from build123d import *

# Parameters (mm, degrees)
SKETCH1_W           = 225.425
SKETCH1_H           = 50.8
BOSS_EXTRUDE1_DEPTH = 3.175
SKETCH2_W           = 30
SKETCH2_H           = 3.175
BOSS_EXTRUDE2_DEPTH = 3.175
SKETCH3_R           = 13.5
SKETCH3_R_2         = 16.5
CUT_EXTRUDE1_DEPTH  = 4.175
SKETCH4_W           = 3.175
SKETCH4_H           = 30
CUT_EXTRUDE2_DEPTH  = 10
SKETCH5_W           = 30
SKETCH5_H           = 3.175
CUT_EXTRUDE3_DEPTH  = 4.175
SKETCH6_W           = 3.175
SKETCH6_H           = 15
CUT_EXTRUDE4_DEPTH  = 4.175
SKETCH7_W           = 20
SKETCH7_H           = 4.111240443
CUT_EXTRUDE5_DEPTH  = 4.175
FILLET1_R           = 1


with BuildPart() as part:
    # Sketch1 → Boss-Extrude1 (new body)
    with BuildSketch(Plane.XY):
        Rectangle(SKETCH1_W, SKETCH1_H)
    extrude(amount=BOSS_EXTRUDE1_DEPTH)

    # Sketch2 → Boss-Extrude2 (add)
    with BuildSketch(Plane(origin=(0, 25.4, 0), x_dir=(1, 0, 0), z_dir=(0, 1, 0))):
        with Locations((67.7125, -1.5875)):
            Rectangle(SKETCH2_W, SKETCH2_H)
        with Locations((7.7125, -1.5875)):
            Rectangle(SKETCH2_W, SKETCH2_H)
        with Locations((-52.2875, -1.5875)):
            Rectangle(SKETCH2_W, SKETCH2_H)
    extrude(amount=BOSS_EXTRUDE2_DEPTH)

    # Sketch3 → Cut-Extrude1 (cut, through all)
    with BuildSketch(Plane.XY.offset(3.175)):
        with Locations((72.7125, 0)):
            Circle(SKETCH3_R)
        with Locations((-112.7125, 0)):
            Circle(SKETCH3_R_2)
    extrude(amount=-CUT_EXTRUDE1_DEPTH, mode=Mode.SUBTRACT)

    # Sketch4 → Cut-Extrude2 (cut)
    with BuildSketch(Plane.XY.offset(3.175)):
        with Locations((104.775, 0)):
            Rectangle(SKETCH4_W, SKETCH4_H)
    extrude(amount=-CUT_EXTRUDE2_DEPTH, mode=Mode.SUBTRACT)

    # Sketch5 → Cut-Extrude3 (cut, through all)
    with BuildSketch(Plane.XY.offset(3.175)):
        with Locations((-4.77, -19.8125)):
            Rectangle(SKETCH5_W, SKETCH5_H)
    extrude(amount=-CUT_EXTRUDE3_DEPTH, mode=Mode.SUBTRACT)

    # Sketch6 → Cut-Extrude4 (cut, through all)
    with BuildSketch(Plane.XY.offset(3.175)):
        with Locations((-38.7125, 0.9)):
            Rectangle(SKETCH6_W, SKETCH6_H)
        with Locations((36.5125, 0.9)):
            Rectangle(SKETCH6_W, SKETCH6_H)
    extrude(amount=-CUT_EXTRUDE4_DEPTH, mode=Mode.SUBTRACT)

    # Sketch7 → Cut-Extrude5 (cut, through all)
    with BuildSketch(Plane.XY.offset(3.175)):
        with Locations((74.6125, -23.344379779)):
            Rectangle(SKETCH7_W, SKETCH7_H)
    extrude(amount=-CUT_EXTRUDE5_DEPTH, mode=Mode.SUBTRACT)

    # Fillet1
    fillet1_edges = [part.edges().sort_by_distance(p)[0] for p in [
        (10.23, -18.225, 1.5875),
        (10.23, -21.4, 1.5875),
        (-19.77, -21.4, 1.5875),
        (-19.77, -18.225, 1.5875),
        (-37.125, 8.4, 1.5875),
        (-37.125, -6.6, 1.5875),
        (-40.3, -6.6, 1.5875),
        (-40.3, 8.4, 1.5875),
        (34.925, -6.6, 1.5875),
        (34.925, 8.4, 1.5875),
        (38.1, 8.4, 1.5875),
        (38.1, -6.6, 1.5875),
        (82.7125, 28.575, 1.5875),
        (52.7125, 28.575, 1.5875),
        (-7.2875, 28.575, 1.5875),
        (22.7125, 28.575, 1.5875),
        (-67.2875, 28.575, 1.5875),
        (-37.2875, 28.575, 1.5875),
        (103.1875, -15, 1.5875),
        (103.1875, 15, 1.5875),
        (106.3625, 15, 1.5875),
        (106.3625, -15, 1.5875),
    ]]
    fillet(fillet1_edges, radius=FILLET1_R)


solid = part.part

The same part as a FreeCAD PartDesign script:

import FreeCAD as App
import Part
import Sketcher
from FreeCAD import Vector
Q = App.Units.Quantity


def edges_at(feature, points):
    """Names of the edges that pass closest to the given points."""
    edges = feature.Shape.Edges
    near = lambda p: min(range(len(edges)), key=lambda i: edges[i].distToShape(Part.Vertex(*p))[0])
    return sorted({f"Edge{near(p) + 1}" for p in points})

doc = App.newDocument("Part")
body = doc.addObject("PartDesign::Body", "Body")

# Sketch on XY plane
sketch1 = body.newObject("Sketcher::SketchObject", "Sketch")
sketch1.AttachmentSupport = (doc.getObject("XY_Plane"), [""])
sketch1.MapMode = "FlatFace"
sketch1.addGeometry(Part.LineSegment(Vector(-113, 25, 0), Vector(-113, -25, 0)), False)
sketch1.addGeometry(Part.LineSegment(Vector(-113, -25, 0), Vector(113, -25, 0)), False)
sketch1.addGeometry(Part.LineSegment(Vector(113, -25, 0), Vector(113, 25, 0)), False)
sketch1.addGeometry(Part.LineSegment(Vector(113, 25, 0), Vector(-113, 25, 0)), False)
sketch1.addConstraint(Sketcher.Constraint("Coincident", 0, 2, 1, 1))
sketch1.addConstraint(Sketcher.Constraint("Coincident", 1, 2, 2, 1))
sketch1.addConstraint(Sketcher.Constraint("Coincident", 2, 2, 3, 1))
sketch1.addConstraint(Sketcher.Constraint("Coincident", 3, 2, 0, 1))
sketch1.addConstraint(Sketcher.Constraint("Vertical", 0))
sketch1.addConstraint(Sketcher.Constraint("Horizontal", 1))
sketch1.addConstraint(Sketcher.Constraint("Vertical", 2))
sketch1.addConstraint(Sketcher.Constraint("Horizontal", 3))
sketch1.addConstraint(Sketcher.Constraint("Symmetric", 0, 2, 2, 2, -1, 1))
sketch1.addConstraint(Sketcher.Constraint("DistanceY", 0, 2, 0, 1, Q("50.8 mm")))
sketch1.addConstraint(Sketcher.Constraint("DistanceX", 1, 1, 1, 2, Q("225.425 mm")))
pad1 = body.newObject("PartDesign::Pad", "Pad")
pad1.Profile = sketch1
pad1.Length = 3.175

# Sketch on XZ plane
sketch2 = body.newObject("Sketcher::SketchObject", "Sketch001")
sketch2.AttachmentSupport = (doc.getObject("XZ_Plane"), [""])
sketch2.MapMode = "FlatFace"
sketch2.AttachmentOffset = App.Placement(Vector(0, 0, -25.4), App.Rotation())
sketch2.addGeometry(Part.LineSegment(Vector(52.7, 0, 0), Vector(52.7, 3.2, 0)), False)
sketch2.addGeometry(Part.LineSegment(Vector(52.7, 3.2, 0), Vector(82.7, 3.2, 0)), False)
sketch2.addGeometry(Part.LineSegment(Vector(82.7, 3.2, 0), Vector(82.7, 0, 0)), False)
sketch2.addGeometry(Part.LineSegment(Vector(82.7, 0, 0), Vector(52.7, 0, 0)), False)
sketch2.addGeometry(Part.LineSegment(Vector(-7.3, 0, 0), Vector(-7.3, 3.2, 0)), False)
sketch2.addGeometry(Part.LineSegment(Vector(-7.3, 3.2, 0), Vector(22.7, 3.2, 0)), False)
sketch2.addGeometry(Part.LineSegment(Vector(22.7, 3.2, 0), Vector(22.7, 0, 0)), False)
sketch2.addGeometry(Part.LineSegment(Vector(22.7, 0, 0), Vector(-7.3, 0, 0)), False)
sketch2.addGeometry(Part.LineSegment(Vector(-67.3, 0, 0), Vector(-67.3, 3.2, 0)), False)
sketch2.addGeometry(Part.LineSegment(Vector(-67.3, 3.2, 0), Vector(-37.3, 3.2, 0)), False)
sketch2.addGeometry(Part.LineSegment(Vector(-37.3, 3.2, 0), Vector(-37.3, 0, 0)), False)
sketch2.addGeometry(Part.LineSegment(Vector(-37.3, 0, 0), Vector(-67.3, 0, 0)), False)
sketch2.addConstraint(Sketcher.Constraint("Coincident", 0, 2, 1, 1))
sketch2.addConstraint(Sketcher.Constraint("Coincident", 1, 2, 2, 1))
sketch2.addConstraint(Sketcher.Constraint("Coincident", 2, 2, 3, 1))
sketch2.addConstraint(Sketcher.Constraint("Coincident", 3, 2, 0, 1))
sketch2.addConstraint(Sketcher.Constraint("Coincident", 4, 2, 5, 1))
sketch2.addConstraint(Sketcher.Constraint("Coincident", 5, 2, 6, 1))
sketch2.addConstraint(Sketcher.Constraint("Coincident", 6, 2, 7, 1))
sketch2.addConstraint(Sketcher.Constraint("Coincident", 7, 2, 4, 1))
sketch2.addConstraint(Sketcher.Constraint("Coincident", 8, 2, 9, 1))
sketch2.addConstraint(Sketcher.Constraint("Coincident", 9, 2, 10, 1))
sketch2.addConstraint(Sketcher.Constraint("Coincident", 10, 2, 11, 1))
sketch2.addConstraint(Sketcher.Constraint("Coincident", 11, 2, 8, 1))
sketch2.addConstraint(Sketcher.Constraint("Vertical", 0))
sketch2.addConstraint(Sketcher.Constraint("Horizontal", 1))
sketch2.addConstraint(Sketcher.Constraint("Vertical", 2))
sketch2.addConstraint(Sketcher.Constraint("Horizontal", 3))
sketch2.addConstraint(Sketcher.Constraint("Vertical", 4))
sketch2.addConstraint(Sketcher.Constraint("Horizontal", 5))
sketch2.addConstraint(Sketcher.Constraint("Vertical", 6))
sketch2.addConstraint(Sketcher.Constraint("Horizontal", 7))
sketch2.addConstraint(Sketcher.Constraint("Vertical", 8))
sketch2.addConstraint(Sketcher.Constraint("Horizontal", 9))
sketch2.addConstraint(Sketcher.Constraint("Vertical", 10))
sketch2.addConstraint(Sketcher.Constraint("Horizontal", 11))
sketch2.addConstraint(Sketcher.Constraint("PointOnObject", 2, 2, -1))
sketch2.addConstraint(Sketcher.Constraint("PointOnObject", 6, 2, -1))
sketch2.addConstraint(Sketcher.Constraint("PointOnObject", 10, 2, -1))
sketch2.addConstraint(Sketcher.Constraint("Horizontal", 1, 2, 4, 2))
sketch2.addConstraint(Sketcher.Constraint("Horizontal", 5, 2, 8, 2))
sketch2.addConstraint(Sketcher.Constraint("Equal", 3, 5))
sketch2.addConstraint(Sketcher.Constraint("Equal", 7, 9))
sketch2.addConstraint(Sketcher.Constraint("DistanceX", 1, 1, 1, 2, Q("30 mm")))
sketch2.addConstraint(Sketcher.Constraint("DistanceX", 4, 2, 0, 2, Q("60 mm")))
sketch2.addConstraint(Sketcher.Constraint("DistanceX", 8, 2, 4, 2, Q("60 mm")))
sketch2.addConstraint(Sketcher.Constraint("DistanceY", 0, 1, 0, 2, Q("3.175 mm")))
sketch2.addConstraint(Sketcher.Constraint("DistanceX", -1, 1, 0, 2, Q("52.7125 mm")))
pad2 = body.newObject("PartDesign::Pad", "Pad001")
pad2.Profile = sketch2
pad2.Length = 3.175
pad2.Reversed = True

# Sketch on XY plane
sketch3 = body.newObject("Sketcher::SketchObject", "Sketch002")
sketch3.AttachmentSupport = (doc.getObject("XY_Plane"), [""])
sketch3.MapMode = "FlatFace"
sketch3.AttachmentOffset = App.Placement(Vector(0, 0, 3.175), App.Rotation())
sketch3.addGeometry(Part.Circle(Vector(73, 0, 0), Vector(0, 0, 1), 14), False)
sketch3.addGeometry(Part.Circle(Vector(-113, 0, 0), Vector(0, 0, 1), 16), False)
sketch3.addConstraint(Sketcher.Constraint("PointOnObject", 0, 3, -1))
sketch3.addConstraint(Sketcher.Constraint("PointOnObject", 1, 3, -1))
sketch3.addConstraint(Sketcher.Constraint("Diameter", 0, Q("27 mm")))
sketch3.addConstraint(Sketcher.Constraint("Diameter", 1, Q("33 mm")))
sketch3.addConstraint(Sketcher.Constraint("DistanceX", 1, 3, 0, 3, Q("185.425 mm")))
sketch3.addConstraint(Sketcher.Constraint("DistanceX", -1, 1, 0, 3, Q("72.7125 mm")))
pocket1 = body.newObject("PartDesign::Pocket", "Pocket")
pocket1.Profile = sketch3
pocket1.Type = "ThroughAll"

# Sketch on XY plane
sketch4 = body.newObject("Sketcher::SketchObject", "Sketch003")
sketch4.AttachmentSupport = (doc.getObject("XY_Plane"), [""])
sketch4.MapMode = "FlatFace"
sketch4.AttachmentOffset = App.Placement(Vector(0, 0, 3.175), App.Rotation())
sketch4.addGeometry(Part.LineSegment(Vector(103.2, 15, 0), Vector(103.2, -15, 0)), False)
sketch4.addGeometry(Part.LineSegment(Vector(103.2, -15, 0), Vector(106.4, -15, 0)), False)
sketch4.addGeometry(Part.LineSegment(Vector(106.4, -15, 0), Vector(106.4, 15, 0)), False)
sketch4.addGeometry(Part.LineSegment(Vector(106.4, 15, 0), Vector(103.2, 15, 0)), False)
sketch4.addConstraint(Sketcher.Constraint("Coincident", 0, 2, 1, 1))
sketch4.addConstraint(Sketcher.Constraint("Coincident", 1, 2, 2, 1))
sketch4.addConstraint(Sketcher.Constraint("Coincident", 2, 2, 3, 1))
sketch4.addConstraint(Sketcher.Constraint("Coincident", 3, 2, 0, 1))
sketch4.addConstraint(Sketcher.Constraint("Vertical", 0))
sketch4.addConstraint(Sketcher.Constraint("Horizontal", 1))
sketch4.addConstraint(Sketcher.Constraint("Vertical", 2))
sketch4.addConstraint(Sketcher.Constraint("Horizontal", 3))
sketch4.addConstraint(Sketcher.Constraint("DistanceY", 0, 2, 0, 1, Q("30 mm")))
sketch4.addConstraint(Sketcher.Constraint("DistanceY", 0, 2, -1, 1, Q("15 mm")))
sketch4.addConstraint(Sketcher.Constraint("DistanceX", 1, 1, 1, 2, Q("3.175 mm")))
sketch4.addConstraint(Sketcher.Constraint("DistanceX", -1, 1, 0, 2, Q("103.1875 mm")))
pocket2 = body.newObject("PartDesign::Pocket", "Pocket001")
pocket2.Profile = sketch4
pocket2.Length = 10

# Sketch on XY plane
sketch5 = body.newObject("Sketcher::SketchObject", "Sketch004")
sketch5.AttachmentSupport = (doc.getObject("XY_Plane"), [""])
sketch5.MapMode = "FlatFace"
sketch5.AttachmentOffset = App.Placement(Vector(0, 0, 3.175), App.Rotation())
sketch5.addGeometry(Part.LineSegment(Vector(-19.8, -18.2, 0), Vector(-19.8, -21.4, 0)), False)
sketch5.addGeometry(Part.LineSegment(Vector(-19.8, -21.4, 0), Vector(10.2, -21.4, 0)), False)
sketch5.addGeometry(Part.LineSegment(Vector(10.2, -21.4, 0), Vector(10.2, -18.2, 0)), False)
sketch5.addGeometry(Part.LineSegment(Vector(10.2, -18.2, 0), Vector(-19.8, -18.2, 0)), False)
sketch5.addConstraint(Sketcher.Constraint("Coincident", 0, 2, 1, 1))
sketch5.addConstraint(Sketcher.Constraint("Coincident", 1, 2, 2, 1))
sketch5.addConstraint(Sketcher.Constraint("Coincident", 2, 2, 3, 1))
sketch5.addConstraint(Sketcher.Constraint("Coincident", 3, 2, 0, 1))
sketch5.addConstraint(Sketcher.Constraint("Vertical", 0))
sketch5.addConstraint(Sketcher.Constraint("Horizontal", 1))
sketch5.addConstraint(Sketcher.Constraint("Vertical", 2))
sketch5.addConstraint(Sketcher.Constraint("Horizontal", 3))
sketch5.addConstraint(Sketcher.Constraint("DistanceX", 1, 1, 1, 2, Q("30 mm")))
sketch5.addConstraint(Sketcher.Constraint("DistanceY", 0, 2, -1, 1, Q("21.4 mm")))
sketch5.addConstraint(Sketcher.Constraint("DistanceY", 0, 2, 0, 1, Q("3.175 mm")))
sketch5.addConstraint(Sketcher.Constraint("DistanceX", 0, 2, -1, 1, Q("19.77 mm")))
pocket3 = body.newObject("PartDesign::Pocket", "Pocket002")
pocket3.Profile = sketch5
pocket3.Type = "ThroughAll"

# Sketch on XY plane
sketch6 = body.newObject("Sketcher::SketchObject", "Sketch005")
sketch6.AttachmentSupport = (doc.getObject("XY_Plane"), [""])
sketch6.MapMode = "FlatFace"
sketch6.AttachmentOffset = App.Placement(Vector(0, 0, 3.175), App.Rotation())
sketch6.addGeometry(Part.LineSegment(Vector(-40.3, 8.4, 0), Vector(-40.3, -6.6, 0)), False)
sketch6.addGeometry(Part.LineSegment(Vector(-40.3, -6.6, 0), Vector(-37.1, -6.6, 0)), False)
sketch6.addGeometry(Part.LineSegment(Vector(-37.1, -6.6, 0), Vector(-37.1, 8.4, 0)), False)
sketch6.addGeometry(Part.LineSegment(Vector(-37.1, 8.4, 0), Vector(-40.3, 8.4, 0)), False)
sketch6.addGeometry(Part.LineSegment(Vector(34.9, 8.4, 0), Vector(34.9, -6.6, 0)), False)
sketch6.addGeometry(Part.LineSegment(Vector(34.9, -6.6, 0), Vector(38.1, -6.6, 0)), False)
sketch6.addGeometry(Part.LineSegment(Vector(38.1, -6.6, 0), Vector(38.1, 8.4, 0)), False)
sketch6.addGeometry(Part.LineSegment(Vector(38.1, 8.4, 0), Vector(34.9, 8.4, 0)), False)
sketch6.addConstraint(Sketcher.Constraint("Coincident", 0, 2, 1, 1))
sketch6.addConstraint(Sketcher.Constraint("Coincident", 1, 2, 2, 1))
sketch6.addConstraint(Sketcher.Constraint("Coincident", 2, 2, 3, 1))
sketch6.addConstraint(Sketcher.Constraint("Coincident", 3, 2, 0, 1))
sketch6.addConstraint(Sketcher.Constraint("Coincident", 4, 2, 5, 1))
sketch6.addConstraint(Sketcher.Constraint("Coincident", 5, 2, 6, 1))
sketch6.addConstraint(Sketcher.Constraint("Coincident", 6, 2, 7, 1))
sketch6.addConstraint(Sketcher.Constraint("Coincident", 7, 2, 4, 1))
sketch6.addConstraint(Sketcher.Constraint("Vertical", 0))
sketch6.addConstraint(Sketcher.Constraint("Horizontal", 1))
sketch6.addConstraint(Sketcher.Constraint("Vertical", 2))
sketch6.addConstraint(Sketcher.Constraint("Horizontal", 3))
sketch6.addConstraint(Sketcher.Constraint("Vertical", 4))
sketch6.addConstraint(Sketcher.Constraint("Horizontal", 5))
sketch6.addConstraint(Sketcher.Constraint("Vertical", 6))
sketch6.addConstraint(Sketcher.Constraint("Horizontal", 7))
sketch6.addConstraint(Sketcher.Constraint("Horizontal", 1, 2, 4, 2))
sketch6.addConstraint(Sketcher.Constraint("Horizontal", 3, 2, 6, 2))
sketch6.addConstraint(Sketcher.Constraint("Equal", 3, 5))
sketch6.addConstraint(Sketcher.Constraint("DistanceY", 0, 2, 0, 1, Q("15 mm")))
sketch6.addConstraint(Sketcher.Constraint("DistanceX", 0, 2, -1, 1, Q("40.3 mm")))
sketch6.addConstraint(Sketcher.Constraint("DistanceY", 0, 2, -1, 1, Q("6.6 mm")))
sketch6.addConstraint(Sketcher.Constraint("DistanceX", -1, 1, 5, 2, Q("38.1 mm")))
sketch6.addConstraint(Sketcher.Constraint("DistanceX", 1, 1, 1, 2, Q("3.175 mm")))
pocket4 = body.newObject("PartDesign::Pocket", "Pocket003")
pocket4.Profile = sketch6
pocket4.Type = "ThroughAll"

# Sketch on XY plane
sketch7 = body.newObject("Sketcher::SketchObject", "Sketch006")
sketch7.AttachmentSupport = (doc.getObject("XY_Plane"), [""])
sketch7.MapMode = "FlatFace"
sketch7.AttachmentOffset = App.Placement(Vector(0, 0, 3.175), App.Rotation())
sketch7.addGeometry(Part.LineSegment(Vector(64.6, -21.3, 0), Vector(64.6, -25.4, 0)), False)
sketch7.addGeometry(Part.LineSegment(Vector(64.6, -25.4, 0), Vector(84.6, -25.4, 0)), False)
sketch7.addGeometry(Part.LineSegment(Vector(84.6, -25.4, 0), Vector(84.6, -21.3, 0)), False)
sketch7.addGeometry(Part.LineSegment(Vector(84.6, -21.3, 0), Vector(64.6, -21.3, 0)), False)
sketch7.addConstraint(Sketcher.Constraint("Coincident", 0, 2, 1, 1))
sketch7.addConstraint(Sketcher.Constraint("Coincident", 1, 2, 2, 1))
sketch7.addConstraint(Sketcher.Constraint("Coincident", 2, 2, 3, 1))
sketch7.addConstraint(Sketcher.Constraint("Coincident", 3, 2, 0, 1))
sketch7.addConstraint(Sketcher.Constraint("Vertical", 0))
sketch7.addConstraint(Sketcher.Constraint("Horizontal", 1))
sketch7.addConstraint(Sketcher.Constraint("Vertical", 2))
sketch7.addConstraint(Sketcher.Constraint("Horizontal", 3))
sketch7.addConstraint(Sketcher.Constraint("DistanceX", 1, 1, 1, 2, Q("20 mm")))
sketch7.addConstraint(Sketcher.Constraint("DistanceY", 0, 2, -1, 1, Q("25.4 mm")))
sketch7.addConstraint(Sketcher.Constraint("DistanceY", 0, 2, 0, 1, Q("4.11124 mm")))
sketch7.addConstraint(Sketcher.Constraint("DistanceX", -1, 1, 0, 2, Q("64.6125 mm")))
pocket5 = body.newObject("PartDesign::Pocket", "Pocket004")
pocket5.Profile = sketch7
pocket5.Type = "ThroughAll"
doc.recompute()

fillet = body.newObject("PartDesign::Fillet", "Fillet")
fillet.Base = (pocket5, edges_at(pocket5, [
    (10.23, -18.225, 1.587),
    (10.23, -21.4, 1.587),
    (-19.77, -21.4, 1.587),
    (-19.77, -18.225, 1.587),
    (-37.125, 8.4, 1.587),
    (-37.125, -6.6, 1.587),
    (-40.3, -6.6, 1.587),
    (-40.3, 8.4, 1.587),
    (34.925, -6.6, 1.587),
    (34.925, 8.4, 1.587),
    (38.1, 8.4, 1.587),
    (38.1, -6.6, 1.587),
    (82.713, 28.575, 1.587),
    (52.712, 28.575, 1.587),
    (-7.287, 28.575, 1.587),
    (22.712, 28.575, 1.587),
    (-67.287, 28.575, 1.587),
    (-37.288, 28.575, 1.587),
    (103.188, -15, 1.587),
    (103.188, 15, 1.587),
    (106.362, 15, 1.587),
    (106.362, -15, 1.587),
]))
fillet.Radius = 1

doc.recompute()
